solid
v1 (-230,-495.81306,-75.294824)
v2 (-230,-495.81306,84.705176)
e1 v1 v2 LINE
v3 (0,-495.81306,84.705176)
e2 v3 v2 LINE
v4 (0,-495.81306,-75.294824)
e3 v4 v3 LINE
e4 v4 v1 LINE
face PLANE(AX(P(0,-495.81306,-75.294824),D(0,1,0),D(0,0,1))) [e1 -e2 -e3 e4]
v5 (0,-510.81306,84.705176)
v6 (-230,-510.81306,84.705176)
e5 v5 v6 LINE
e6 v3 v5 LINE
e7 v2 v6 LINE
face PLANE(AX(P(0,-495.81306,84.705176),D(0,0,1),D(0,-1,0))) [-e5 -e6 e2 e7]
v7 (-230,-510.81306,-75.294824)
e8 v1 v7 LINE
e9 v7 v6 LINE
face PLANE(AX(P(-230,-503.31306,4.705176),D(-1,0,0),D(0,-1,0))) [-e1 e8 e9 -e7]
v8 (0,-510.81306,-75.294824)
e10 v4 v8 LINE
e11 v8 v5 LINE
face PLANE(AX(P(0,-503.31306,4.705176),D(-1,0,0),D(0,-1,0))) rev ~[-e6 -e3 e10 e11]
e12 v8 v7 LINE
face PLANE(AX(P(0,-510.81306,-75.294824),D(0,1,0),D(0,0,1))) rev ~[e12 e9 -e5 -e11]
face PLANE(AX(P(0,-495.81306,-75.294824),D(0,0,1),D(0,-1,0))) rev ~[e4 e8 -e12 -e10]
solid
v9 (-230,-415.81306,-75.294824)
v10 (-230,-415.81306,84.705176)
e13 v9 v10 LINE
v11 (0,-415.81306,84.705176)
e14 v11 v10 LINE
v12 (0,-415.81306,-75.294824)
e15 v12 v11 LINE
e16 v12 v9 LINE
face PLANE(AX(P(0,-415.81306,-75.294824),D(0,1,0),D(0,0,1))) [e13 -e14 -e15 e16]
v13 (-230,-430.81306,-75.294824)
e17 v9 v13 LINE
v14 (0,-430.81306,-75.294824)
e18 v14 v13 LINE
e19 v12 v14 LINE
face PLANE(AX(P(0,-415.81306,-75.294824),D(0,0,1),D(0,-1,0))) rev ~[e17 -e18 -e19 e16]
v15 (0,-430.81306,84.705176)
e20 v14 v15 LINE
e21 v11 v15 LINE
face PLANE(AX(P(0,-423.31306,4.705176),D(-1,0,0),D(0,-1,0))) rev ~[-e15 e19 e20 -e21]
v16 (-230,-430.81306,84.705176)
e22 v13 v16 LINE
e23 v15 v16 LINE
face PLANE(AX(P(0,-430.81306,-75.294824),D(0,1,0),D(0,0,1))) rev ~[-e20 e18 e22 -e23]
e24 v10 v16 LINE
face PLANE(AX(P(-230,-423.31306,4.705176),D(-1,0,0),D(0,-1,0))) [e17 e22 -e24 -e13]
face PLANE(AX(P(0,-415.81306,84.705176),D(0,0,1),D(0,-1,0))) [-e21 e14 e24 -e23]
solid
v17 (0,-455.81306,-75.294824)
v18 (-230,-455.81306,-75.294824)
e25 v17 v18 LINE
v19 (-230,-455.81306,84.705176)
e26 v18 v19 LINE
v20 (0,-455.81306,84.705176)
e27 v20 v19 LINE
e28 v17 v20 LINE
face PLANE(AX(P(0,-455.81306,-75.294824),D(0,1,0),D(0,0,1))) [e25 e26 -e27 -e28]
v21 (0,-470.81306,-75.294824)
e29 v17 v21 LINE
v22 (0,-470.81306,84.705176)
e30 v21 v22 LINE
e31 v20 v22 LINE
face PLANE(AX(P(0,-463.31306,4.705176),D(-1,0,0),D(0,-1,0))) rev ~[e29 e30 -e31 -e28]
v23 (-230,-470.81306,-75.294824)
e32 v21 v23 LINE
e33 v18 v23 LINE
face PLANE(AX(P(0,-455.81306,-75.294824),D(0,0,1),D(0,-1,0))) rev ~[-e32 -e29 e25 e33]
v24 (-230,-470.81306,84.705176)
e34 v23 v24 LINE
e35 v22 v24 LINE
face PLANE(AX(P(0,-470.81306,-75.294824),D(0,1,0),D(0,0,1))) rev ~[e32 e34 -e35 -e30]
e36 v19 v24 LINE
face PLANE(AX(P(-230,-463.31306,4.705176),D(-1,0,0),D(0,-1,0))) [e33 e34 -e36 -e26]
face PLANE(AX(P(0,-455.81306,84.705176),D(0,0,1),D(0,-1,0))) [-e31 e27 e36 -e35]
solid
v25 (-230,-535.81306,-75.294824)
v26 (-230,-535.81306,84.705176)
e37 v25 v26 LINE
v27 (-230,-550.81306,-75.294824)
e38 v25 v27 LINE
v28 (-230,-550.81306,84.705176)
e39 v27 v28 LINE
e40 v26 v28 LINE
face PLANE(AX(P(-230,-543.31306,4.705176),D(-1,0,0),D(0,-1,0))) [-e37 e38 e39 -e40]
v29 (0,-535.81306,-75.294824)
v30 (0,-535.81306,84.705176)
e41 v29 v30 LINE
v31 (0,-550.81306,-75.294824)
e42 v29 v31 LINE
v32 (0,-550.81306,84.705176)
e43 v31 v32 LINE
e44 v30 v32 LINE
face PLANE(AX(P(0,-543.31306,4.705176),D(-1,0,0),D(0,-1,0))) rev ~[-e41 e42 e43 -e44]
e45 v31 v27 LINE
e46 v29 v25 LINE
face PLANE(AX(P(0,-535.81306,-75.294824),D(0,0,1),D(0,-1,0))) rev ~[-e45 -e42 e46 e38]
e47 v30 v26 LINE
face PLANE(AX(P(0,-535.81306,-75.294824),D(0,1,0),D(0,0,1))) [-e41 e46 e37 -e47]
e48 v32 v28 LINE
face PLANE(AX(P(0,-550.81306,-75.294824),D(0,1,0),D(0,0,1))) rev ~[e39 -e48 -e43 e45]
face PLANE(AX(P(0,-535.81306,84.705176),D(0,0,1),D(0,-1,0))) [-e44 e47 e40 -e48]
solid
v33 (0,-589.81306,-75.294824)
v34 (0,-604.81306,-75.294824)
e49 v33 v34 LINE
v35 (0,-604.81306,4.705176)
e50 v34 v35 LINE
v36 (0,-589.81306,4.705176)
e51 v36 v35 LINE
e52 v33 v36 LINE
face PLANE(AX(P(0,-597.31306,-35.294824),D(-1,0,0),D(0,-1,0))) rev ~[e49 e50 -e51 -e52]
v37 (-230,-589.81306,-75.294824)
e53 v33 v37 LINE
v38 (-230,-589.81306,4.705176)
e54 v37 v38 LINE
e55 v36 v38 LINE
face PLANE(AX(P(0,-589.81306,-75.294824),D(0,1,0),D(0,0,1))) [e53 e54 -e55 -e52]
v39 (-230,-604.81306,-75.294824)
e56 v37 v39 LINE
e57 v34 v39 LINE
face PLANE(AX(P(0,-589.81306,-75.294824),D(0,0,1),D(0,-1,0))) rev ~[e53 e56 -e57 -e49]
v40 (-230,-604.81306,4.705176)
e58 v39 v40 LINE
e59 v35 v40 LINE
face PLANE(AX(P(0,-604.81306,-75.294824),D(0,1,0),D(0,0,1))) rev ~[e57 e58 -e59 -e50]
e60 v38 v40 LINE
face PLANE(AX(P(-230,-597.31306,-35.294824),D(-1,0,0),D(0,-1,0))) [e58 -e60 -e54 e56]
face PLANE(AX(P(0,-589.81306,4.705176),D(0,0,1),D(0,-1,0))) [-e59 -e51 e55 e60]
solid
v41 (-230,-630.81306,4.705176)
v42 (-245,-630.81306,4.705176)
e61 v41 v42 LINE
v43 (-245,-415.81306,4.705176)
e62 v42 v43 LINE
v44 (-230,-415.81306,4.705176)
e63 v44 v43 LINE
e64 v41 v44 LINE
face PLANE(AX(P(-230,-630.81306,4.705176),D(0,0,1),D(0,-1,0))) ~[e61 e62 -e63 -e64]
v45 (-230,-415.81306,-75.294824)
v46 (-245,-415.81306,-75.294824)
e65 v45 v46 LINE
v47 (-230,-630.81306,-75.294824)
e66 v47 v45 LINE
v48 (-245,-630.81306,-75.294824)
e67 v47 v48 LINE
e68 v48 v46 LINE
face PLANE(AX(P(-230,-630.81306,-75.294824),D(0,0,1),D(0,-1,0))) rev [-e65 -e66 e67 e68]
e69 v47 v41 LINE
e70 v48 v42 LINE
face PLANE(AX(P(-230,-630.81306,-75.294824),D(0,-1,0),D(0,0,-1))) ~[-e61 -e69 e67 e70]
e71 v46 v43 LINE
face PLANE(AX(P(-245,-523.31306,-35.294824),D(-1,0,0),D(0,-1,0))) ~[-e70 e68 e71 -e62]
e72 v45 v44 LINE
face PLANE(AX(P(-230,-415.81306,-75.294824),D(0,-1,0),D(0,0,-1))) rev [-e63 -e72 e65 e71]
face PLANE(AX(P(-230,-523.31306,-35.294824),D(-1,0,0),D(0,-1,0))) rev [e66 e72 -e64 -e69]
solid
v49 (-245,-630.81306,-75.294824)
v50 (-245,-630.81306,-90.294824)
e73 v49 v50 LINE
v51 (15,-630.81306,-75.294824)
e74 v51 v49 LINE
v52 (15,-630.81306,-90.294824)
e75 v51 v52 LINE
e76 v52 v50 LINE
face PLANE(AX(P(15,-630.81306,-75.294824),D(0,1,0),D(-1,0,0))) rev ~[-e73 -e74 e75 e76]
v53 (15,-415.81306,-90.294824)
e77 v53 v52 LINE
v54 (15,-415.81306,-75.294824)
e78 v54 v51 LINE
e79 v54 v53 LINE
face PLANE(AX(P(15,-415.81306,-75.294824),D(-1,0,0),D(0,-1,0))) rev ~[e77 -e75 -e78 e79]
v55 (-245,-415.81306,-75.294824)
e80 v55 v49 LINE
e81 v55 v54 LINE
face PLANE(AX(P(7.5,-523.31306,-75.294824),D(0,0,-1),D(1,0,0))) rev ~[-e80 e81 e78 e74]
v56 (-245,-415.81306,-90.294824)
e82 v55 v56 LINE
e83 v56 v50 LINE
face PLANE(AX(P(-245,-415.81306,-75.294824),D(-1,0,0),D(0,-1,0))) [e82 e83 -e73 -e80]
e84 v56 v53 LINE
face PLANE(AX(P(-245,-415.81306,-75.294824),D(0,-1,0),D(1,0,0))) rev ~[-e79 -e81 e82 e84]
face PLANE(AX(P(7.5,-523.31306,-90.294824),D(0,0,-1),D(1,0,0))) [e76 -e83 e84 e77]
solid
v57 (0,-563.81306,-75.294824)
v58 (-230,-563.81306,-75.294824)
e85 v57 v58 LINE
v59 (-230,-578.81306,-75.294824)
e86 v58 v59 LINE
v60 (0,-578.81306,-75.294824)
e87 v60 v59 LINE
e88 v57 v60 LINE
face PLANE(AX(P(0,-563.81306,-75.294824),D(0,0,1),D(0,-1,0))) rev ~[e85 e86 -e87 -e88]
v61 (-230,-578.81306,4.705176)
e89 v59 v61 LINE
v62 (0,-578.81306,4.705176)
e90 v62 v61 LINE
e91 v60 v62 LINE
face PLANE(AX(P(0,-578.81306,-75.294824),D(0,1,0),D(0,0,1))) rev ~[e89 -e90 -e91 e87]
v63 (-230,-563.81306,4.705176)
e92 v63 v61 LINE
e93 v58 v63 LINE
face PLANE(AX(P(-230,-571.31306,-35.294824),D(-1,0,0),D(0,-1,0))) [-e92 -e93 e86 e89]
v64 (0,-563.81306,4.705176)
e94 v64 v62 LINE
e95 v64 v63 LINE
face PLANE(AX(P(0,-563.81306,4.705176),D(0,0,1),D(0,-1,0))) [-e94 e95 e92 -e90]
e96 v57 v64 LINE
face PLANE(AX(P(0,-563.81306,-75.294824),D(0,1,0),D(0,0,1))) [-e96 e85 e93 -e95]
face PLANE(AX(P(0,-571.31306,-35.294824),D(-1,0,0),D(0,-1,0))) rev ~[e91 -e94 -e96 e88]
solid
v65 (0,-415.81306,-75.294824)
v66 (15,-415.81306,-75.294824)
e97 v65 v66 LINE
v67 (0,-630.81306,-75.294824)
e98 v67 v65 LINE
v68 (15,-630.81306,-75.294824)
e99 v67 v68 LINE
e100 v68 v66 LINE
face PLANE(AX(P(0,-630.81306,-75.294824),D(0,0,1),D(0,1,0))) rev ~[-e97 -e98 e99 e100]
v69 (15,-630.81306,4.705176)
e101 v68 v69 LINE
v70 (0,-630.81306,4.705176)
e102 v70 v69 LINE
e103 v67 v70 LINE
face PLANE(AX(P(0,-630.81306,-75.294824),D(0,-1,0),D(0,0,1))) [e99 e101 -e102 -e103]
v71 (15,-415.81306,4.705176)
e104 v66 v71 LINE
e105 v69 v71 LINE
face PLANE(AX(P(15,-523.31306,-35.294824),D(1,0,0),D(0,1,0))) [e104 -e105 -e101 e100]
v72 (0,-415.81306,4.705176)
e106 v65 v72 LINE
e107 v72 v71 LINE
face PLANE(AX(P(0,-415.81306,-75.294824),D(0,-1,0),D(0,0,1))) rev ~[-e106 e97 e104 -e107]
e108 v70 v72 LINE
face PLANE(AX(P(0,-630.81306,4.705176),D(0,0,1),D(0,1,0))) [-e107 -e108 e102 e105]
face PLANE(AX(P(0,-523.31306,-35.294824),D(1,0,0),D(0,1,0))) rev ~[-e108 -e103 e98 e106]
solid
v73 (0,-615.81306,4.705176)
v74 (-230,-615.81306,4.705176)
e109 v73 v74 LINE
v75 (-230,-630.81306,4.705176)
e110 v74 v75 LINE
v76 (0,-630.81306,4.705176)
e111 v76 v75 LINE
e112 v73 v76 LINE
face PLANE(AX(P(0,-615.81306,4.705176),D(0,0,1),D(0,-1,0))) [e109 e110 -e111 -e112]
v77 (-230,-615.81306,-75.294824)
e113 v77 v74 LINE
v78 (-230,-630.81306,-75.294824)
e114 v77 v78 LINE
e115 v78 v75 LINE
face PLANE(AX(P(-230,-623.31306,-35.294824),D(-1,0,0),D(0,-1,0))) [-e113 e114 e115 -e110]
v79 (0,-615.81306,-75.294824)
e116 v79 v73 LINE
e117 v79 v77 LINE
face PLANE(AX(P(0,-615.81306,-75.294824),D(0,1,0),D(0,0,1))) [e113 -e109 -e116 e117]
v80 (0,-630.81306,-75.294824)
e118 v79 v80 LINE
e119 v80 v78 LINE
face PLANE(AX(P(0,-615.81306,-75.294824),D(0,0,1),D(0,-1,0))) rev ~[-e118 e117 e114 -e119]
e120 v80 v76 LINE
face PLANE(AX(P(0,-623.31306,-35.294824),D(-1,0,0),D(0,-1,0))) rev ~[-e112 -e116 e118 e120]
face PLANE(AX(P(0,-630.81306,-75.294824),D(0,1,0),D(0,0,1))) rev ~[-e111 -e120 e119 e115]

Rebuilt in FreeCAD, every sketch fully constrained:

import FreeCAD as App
import Part
import Sketcher

V = App.Vector
Q = App.Units.Quantity

doc = App.newDocument("Part")
body = doc.addObject("PartDesign::Body", "Body")

# Sketch on YZ plane
sketch1 = body.newObject("Sketcher::SketchObject", "Sketch")
sketch1.AttachmentSupport = (doc.getObject("YZ_Plane"), [""])
sketch1.MapMode = "FlatFace"
sketch1.addGeometry(Part.LineSegment(V(-630.81306, 4.705176, 0), V(-630.81306, -75.294824, 0)), False)
sketch1.addGeometry(Part.LineSegment(V(-630.81306, -75.294824, 0), V(-415.81306, -75.294824, 0)), False)
sketch1.addGeometry(Part.LineSegment(V(-415.81306, -75.294824, 0), V(-415.81306, 4.705176, 0)), False)
sketch1.addGeometry(Part.LineSegment(V(-415.81306, 4.705176, 0), V(-630.81306, 4.705176, 0)), False)
sketch1.addConstraint(Sketcher.Constraint("Coincident", 0, 2, 1, 1))
sketch1.addConstraint(Sketcher.Constraint("Coincident", 1, 2, 2, 1))
sketch1.addConstraint(Sketcher.Constraint("Coincident", 2, 2, 3, 1))
sketch1.addConstraint(Sketcher.Constraint("Coincident", 3, 2, 0, 1))
sketch1.addConstraint(Sketcher.Constraint("Vertical", 0))
sketch1.addConstraint(Sketcher.Constraint("Horizontal", 1))
sketch1.addConstraint(Sketcher.Constraint("Vertical", 2))
sketch1.addConstraint(Sketcher.Constraint("Horizontal", 3))
sketch1.addConstraint(Sketcher.Constraint("DistanceX", 1, 1, 1, 2, Q("215 mm")))
sketch1.addConstraint(Sketcher.Constraint("DistanceY", 0, 2, 0, 1, Q("80 mm")))
sketch1.addConstraint(Sketcher.Constraint("DistanceX", 0, 2, -1, 1, Q("630.81306 mm")))
sketch1.addConstraint(Sketcher.Constraint("DistanceY", 0, 2, -1, 1, Q("75.294824 mm")))
pad1 = body.newObject("PartDesign::Pad", "Pad")
pad1.Profile = sketch1
pad1.Length = 15
body2 = doc.addObject("PartDesign::Body", "Body001")
body2.AllowCompound = True

# Sketch on YZ plane
sketch2 = body2.newObject("Sketcher::SketchObject", "Sketch001")
sketch2.AttachmentSupport = (doc.getObject("YZ_Plane001"), [""])
sketch2.MapMode = "FlatFace"
sketch2.addGeometry(Part.LineSegment(V(-415.81306, 84.705176, 0), V(-415.81306, -75.294824, 0)), False)
sketch2.addGeometry(Part.LineSegment(V(-415.81306, -75.294824, 0), V(-430.81306, -75.294824, 0)), False)
sketch2.addGeometry(Part.LineSegment(V(-430.81306, -75.294824, 0), V(-430.81306, 84.705176, 0)), False)
sketch2.addGeometry(Part.LineSegment(V(-430.81306, 84.705176, 0), V(-415.81306, 84.705176, 0)), False)
sketch2.addGeometry(Part.LineSegment(V(-455.81306, 84.705176, 0), V(-455.81306, -75.294824, 0)), False)
sketch2.addGeometry(Part.LineSegment(V(-455.81306, -75.294824, 0), V(-470.81306, -75.294824, 0)), False)
sketch2.addGeometry(Part.LineSegment(V(-470.81306, -75.294824, 0), V(-470.81306, 84.705176, 0)), False)
sketch2.addGeometry(Part.LineSegment(V(-470.81306, 84.705176, 0), V(-455.81306, 84.705176, 0)), False)
sketch2.addGeometry(Part.LineSegment(V(-495.81306, 84.705176, 0), V(-495.81306, -75.294824, 0)), False)
sketch2.addGeometry(Part.LineSegment(V(-495.81306, -75.294824, 0), V(-510.81306, -75.294824, 0)), False)
sketch2.addGeometry(Part.LineSegment(V(-510.81306, -75.294824, 0), V(-510.81306, 84.705176, 0)), False)
sketch2.addGeometry(Part.LineSegment(V(-510.81306, 84.705176, 0), V(-495.81306, 84.705176, 0)), False)
sketch2.addGeometry(Part.LineSegment(V(-535.81306, 84.705176, 0), V(-535.81306, -75.294824, 0)), False)
sketch2.addGeometry(Part.LineSegment(V(-535.81306, -75.294824, 0), V(-550.81306, -75.294824, 0)), False)
sketch2.addGeometry(Part.LineSegment(V(-550.81306, -75.294824, 0), V(-550.81306, 84.705176, 0)), False)
sketch2.addGeometry(Part.LineSegment(V(-550.81306, 84.705176, 0), V(-535.81306, 84.705176, 0)), False)
sketch2.addGeometry(Part.LineSegment(V(-615.81306, 4.705176, 0), V(-615.81306, -75.294824, 0)), False)
sketch2.addGeometry(Part.LineSegment(V(-615.81306, -75.294824, 0), V(-630.81306, -75.294824, 0)), False)
sketch2.addGeometry(Part.LineSegment(V(-630.81306, -75.294824, 0), V(-630.81306, 4.705176, 0)), False)
sketch2.addGeometry(Part.LineSegment(V(-630.81306, 4.705176, 0), V(-615.81306, 4.705176, 0)), False)
sketch2.addGeometry(Part.LineSegment(V(-589.81306, 4.705176, 0), V(-589.81306, -75.294824, 0)), False)
sketch2.addGeometry(Part.LineSegment(V(-589.81306, -75.294824, 0), V(-604.81306, -75.294824, 0)), False)
sketch2.addGeometry(Part.LineSegment(V(-604.81306, -75.294824, 0), V(-604.81306, 4.705176, 0)), False)
sketch2.addGeometry(Part.LineSegment(V(-604.81306, 4.705176, 0), V(-589.81306, 4.705176, 0)), False)
sketch2.addGeometry(Part.LineSegment(V(-563.81306, 4.705176, 0), V(-563.81306, -75.294824, 0)), False)
sketch2.addGeometry(Part.LineSegment(V(-563.81306, -75.294824, 0), V(-578.81306, -75.294824, 0)), False)
sketch2.addGeometry(Part.LineSegment(V(-578.81306, -75.294824, 0), V(-578.81306, 4.705176, 0)), False)
sketch2.addGeometry(Part.LineSegment(V(-578.81306, 4.705176, 0), V(-563.81306, 4.705176, 0)), False)
sketch2.addConstraint(Sketcher.Constraint("Coincident", 0, 2, 1, 1))
sketch2.addConstraint(Sketcher.Constraint("Coincident", 1, 2, 2, 1))
sketch2.addConstraint(Sketcher.Constraint("Coincident", 2, 2, 3, 1))
sketch2.addConstraint(Sketcher.Constraint("Coincident", 3, 2, 0, 1))
sketch2.addConstraint(Sketcher.Constraint("Coincident", 4, 2, 5, 1))
sketch2.addConstraint(Sketcher.Constraint("Coincident", 5, 2, 6, 1))
sketch2.addConstraint(Sketcher.Constraint("Coincident", 6, 2, 7, 1))
sketch2.addConstraint(Sketcher.Constraint("Coincident", 7, 2, 4, 1))
sketch2.addConstraint(Sketcher.Constraint("Coincident", 8, 2, 9, 1))
sketch2.addConstraint(Sketcher.Constraint("Coincident", 9, 2, 10, 1))
sketch2.addConstraint(Sketcher.Constraint("Coincident", 10, 2, 11, 1))
sketch2.addConstraint(Sketcher.Constraint("Coincident", 11, 2, 8, 1))
sketch2.addConstraint(Sketcher.Constraint("Coincident", 12, 2, 13, 1))
sketch2.addConstraint(Sketcher.Constraint("Coincident", 13, 2, 14, 1))
sketch2.addConstraint(Sketcher.Constraint("Coincident", 14, 2, 15, 1))
sketch2.addConstraint(Sketcher.Constraint("Coincident", 15, 2, 12, 1))
sketch2.addConstraint(Sketcher.Constraint("Coincident", 16, 2, 17, 1))
sketch2.addConstraint(Sketcher.Constraint("Coincident", 17, 2, 18, 1))
sketch2.addConstraint(Sketcher.Constraint("Coincident", 18, 2, 19, 1))
sketch2.addConstraint(Sketcher.Constraint("Coincident", 19, 2, 16, 1))
sketch2.addConstraint(Sketcher.Constraint("Coincident", 20, 2, 21, 1))
sketch2.addConstraint(Sketcher.Constraint("Coincident", 21, 2, 22, 1))
sketch2.addConstraint(Sketcher.Constraint("Coincident", 22, 2, 23, 1))
sketch2.addConstraint(Sketcher.Constraint("Coincident", 23, 2, 20, 1))
sketch2.addConstraint(Sketcher.Constraint("Coincident", 24, 2, 25, 1))
sketch2.addConstraint(Sketcher.Constraint("Coincident", 25, 2, 26, 1))
sketch2.addConstraint(Sketcher.Constraint("Coincident", 26, 2, 27, 1))
sketch2.addConstraint(Sketcher.Constraint("Coincident", 27, 2, 24, 1))
sketch2.addConstraint(Sketcher.Constraint("Vertical", 0))
sketch2.addConstraint(Sketcher.Constraint("Horizontal", 1))
sketch2.addConstraint(Sketcher.Constraint("Vertical", 2))
sketch2.addConstraint(Sketcher.Constraint("Horizontal", 3))
sketch2.addConstraint(Sketcher.Constraint("Vertical", 4))
sketch2.addConstraint(Sketcher.Constraint("Horizontal", 5))
sketch2.addConstraint(Sketcher.Constraint("Vertical", 6))
sketch2.addConstraint(Sketcher.Constraint("Horizontal", 7))
sketch2.addConstraint(Sketcher.Constraint("Vertical", 8))
sketch2.addConstraint(Sketcher.Constraint("Horizontal", 9))
sketch2.addConstraint(Sketcher.Constraint("Vertical", 10))
sketch2.addConstraint(Sketcher.Constraint("Horizontal", 11))
sketch2.addConstraint(Sketcher.Constraint("Vertical", 12))
sketch2.addConstraint(Sketcher.Constraint("Horizontal", 13))
sketch2.addConstraint(Sketcher.Constraint("Vertical", 14))
sketch2.addConstraint(Sketcher.Constraint("Horizontal", 15))
sketch2.addConstraint(Sketcher.Constraint("Vertical", 16))
sketch2.addConstraint(Sketcher.Constraint("Horizontal", 17))
sketch2.addConstraint(Sketcher.Constraint("Vertical", 18))
sketch2.addConstraint(Sketcher.Constraint("Horizontal", 19))
sketch2.addConstraint(Sketcher.Constraint("Vertical", 20))
sketch2.addConstraint(Sketcher.Constraint("Horizontal", 21))
sketch2.addConstraint(Sketcher.Constraint("Vertical", 22))
sketch2.addConstraint(Sketcher.Constraint("Horizontal", 23))
sketch2.addConstraint(Sketcher.Constraint("Vertical", 24))
sketch2.addConstraint(Sketcher.Constraint("Horizontal", 25))
sketch2.addConstraint(Sketcher.Constraint("Vertical", 26))
sketch2.addConstraint(Sketcher.Constraint("Horizontal", 27))
sketch2.addConstraint(Sketcher.Constraint("Horizontal", 1, 2, 4, 2))
sketch2.addConstraint(Sketcher.Constraint("Horizontal", 3, 2, 6, 2))
sketch2.addConstraint(Sketcher.Constraint("Horizontal", 5, 2, 8, 2))
sketch2.addConstraint(Sketcher.Constraint("Horizontal", 7, 2, 10, 2))
sketch2.addConstraint(Sketcher.Constraint("Horizontal", 9, 2, 12, 2))
sketch2.addConstraint(Sketcher.Constraint("Horizontal", 11, 2, 14, 2))
sketch2.addConstraint(Sketcher.Constraint("Horizontal", 13, 2, 16, 2))
sketch2.addConstraint(Sketcher.Constraint("Horizontal", 17, 2, 20, 2))
sketch2.addConstraint(Sketcher.Constraint("Horizontal", 19, 2, 22, 2))
sketch2.addConstraint(Sketcher.Constraint("Horizontal", 21, 2, 24, 2))
sketch2.addConstraint(Sketcher.Constraint("Horizontal", 23, 2, 26, 2))
sketch2.addConstraint(Sketcher.Constraint("Equal", 3, 5))
sketch2.addConstraint(Sketcher.Constraint("Equal", 7, 9))
sketch2.addConstraint(Sketcher.Constraint("Equal", 11, 13))
sketch2.addConstraint(Sketcher.Constraint("Equal", 15, 17))
sketch2.addConstraint(Sketcher.Constraint("Equal", 19, 21))
sketch2.addConstraint(Sketcher.Constraint("Equal", 23, 25))
sketch2.addConstraint(Sketcher.Constraint("DistanceX", 1, 2, 1, 1, Q("15 mm")))
sketch2.addConstraint(Sketcher.Constraint("DistanceY", 0, 2, 0, 1, Q("160 mm")))
sketch2.addConstraint(Sketcher.Constraint("DistanceY", 16, 2, 16, 1, Q("80 mm")))
sketch2.addConstraint(Sketcher.Constraint("DistanceX", 4, 2, 1, 2, Q("25 mm")))
sketch2.addConstraint(Sketcher.Constraint("DistanceX", 8, 2, 5, 2, Q("25 mm")))
sketch2.addConstraint(Sketcher.Constraint("DistanceX", 12, 2, 9, 2, Q("25 mm")))
sketch2.addConstraint(Sketcher.Constraint("DistanceX", 16, 2, 13, 2, Q("65 mm")))
sketch2.addConstraint(Sketcher.Constraint("DistanceX", 16, 2, 20, 2, Q("26 mm")))
sketch2.addConstraint(Sketcher.Constraint("DistanceX", 24, 2, 13, 2, Q("13 mm")))
sketch2.addConstraint(Sketcher.Constraint("DistanceX", 0, 2, -1, 1, Q("415.81306 mm")))
sketch2.addConstraint(Sketcher.Constraint("DistanceY", 0, 2, -1, 1, Q("75.294824 mm")))
pad2 = body2.newObject("PartDesign::Pad", "Pad001")
pad2.Profile = sketch2
pad2.Length = 230
pad2.Reversed = True
body3 = doc.addObject("PartDesign::Body", "Body002")
doc.recompute()

mirroring = doc.addObject("Part::Mirroring", "Mirroring")
mirroring.Source = body
mirroring.Base = V(-115, 0, 0)
mirroring.Normal = V(1, 0, 0)
body3.BaseFeature = mirroring
doc.recompute()
body4 = doc.addObject("PartDesign::Body", "Body003")

# Sketch on XY plane
sketch3 = body4.newObject("Sketcher::SketchObject", "Sketch002")
sketch3.AttachmentSupport = (doc.getObject("XY_Plane003"), [""])
sketch3.MapMode = "FlatFace"
sketch3.AttachmentOffset = App.Placement(V(0, 0, -75.294824), App.Rotation())
sketch3.addGeometry(Part.LineSegment(V(15, -415.81306, 0), V(15, -630.81306, 0)), False)
sketch3.addGeometry(Part.LineSegment(V(15, -630.81306, 0), V(-245, -630.81306, 0)), False)
sketch3.addGeometry(Part.LineSegment(V(-245, -630.81306, 0), V(-245, -415.81306, 0)), False)
sketch3.addGeometry(Part.LineSegment(V(-245, -415.81306, 0), V(15, -415.81306, 0)), False)
sketch3.addConstraint(Sketcher.Constraint("Coincident", 0, 2, 1, 1))
sketch3.addConstraint(Sketcher.Constraint("Coincident", 1, 2, 2, 1))
sketch3.addConstraint(Sketcher.Constraint("Coincident", 2, 2, 3, 1))
sketch3.addConstraint(Sketcher.Constraint("Coincident", 3, 2, 0, 1))
sketch3.addConstraint(Sketcher.Constraint("Vertical", 0))
sketch3.addConstraint(Sketcher.Constraint("Horizontal", 1))
sketch3.addConstraint(Sketcher.Constraint("Vertical", 2))
sketch3.addConstraint(Sketcher.Constraint("Horizontal", 3))
sketch3.addConstraint(Sketcher.Constraint("DistanceX", 1, 2, 1, 1, Q("260 mm")))
sketch3.addConstraint(Sketcher.Constraint("DistanceY", 0, 2, 0, 1, Q("215 mm")))
sketch3.addConstraint(Sketcher.Constraint("DistanceX", -1, 1, 0, 2, Q("15 mm")))
sketch3.addConstraint(Sketcher.Constraint("DistanceY", 0, 2, -1, 1, Q("630.81306 mm")))
pad3 = body4.newObject("PartDesign::Pad", "Pad002")
pad3.Profile = sketch3
pad3.Length = 15
pad3.Reversed = True
mirroring.Visibility = False

doc.recompute()
